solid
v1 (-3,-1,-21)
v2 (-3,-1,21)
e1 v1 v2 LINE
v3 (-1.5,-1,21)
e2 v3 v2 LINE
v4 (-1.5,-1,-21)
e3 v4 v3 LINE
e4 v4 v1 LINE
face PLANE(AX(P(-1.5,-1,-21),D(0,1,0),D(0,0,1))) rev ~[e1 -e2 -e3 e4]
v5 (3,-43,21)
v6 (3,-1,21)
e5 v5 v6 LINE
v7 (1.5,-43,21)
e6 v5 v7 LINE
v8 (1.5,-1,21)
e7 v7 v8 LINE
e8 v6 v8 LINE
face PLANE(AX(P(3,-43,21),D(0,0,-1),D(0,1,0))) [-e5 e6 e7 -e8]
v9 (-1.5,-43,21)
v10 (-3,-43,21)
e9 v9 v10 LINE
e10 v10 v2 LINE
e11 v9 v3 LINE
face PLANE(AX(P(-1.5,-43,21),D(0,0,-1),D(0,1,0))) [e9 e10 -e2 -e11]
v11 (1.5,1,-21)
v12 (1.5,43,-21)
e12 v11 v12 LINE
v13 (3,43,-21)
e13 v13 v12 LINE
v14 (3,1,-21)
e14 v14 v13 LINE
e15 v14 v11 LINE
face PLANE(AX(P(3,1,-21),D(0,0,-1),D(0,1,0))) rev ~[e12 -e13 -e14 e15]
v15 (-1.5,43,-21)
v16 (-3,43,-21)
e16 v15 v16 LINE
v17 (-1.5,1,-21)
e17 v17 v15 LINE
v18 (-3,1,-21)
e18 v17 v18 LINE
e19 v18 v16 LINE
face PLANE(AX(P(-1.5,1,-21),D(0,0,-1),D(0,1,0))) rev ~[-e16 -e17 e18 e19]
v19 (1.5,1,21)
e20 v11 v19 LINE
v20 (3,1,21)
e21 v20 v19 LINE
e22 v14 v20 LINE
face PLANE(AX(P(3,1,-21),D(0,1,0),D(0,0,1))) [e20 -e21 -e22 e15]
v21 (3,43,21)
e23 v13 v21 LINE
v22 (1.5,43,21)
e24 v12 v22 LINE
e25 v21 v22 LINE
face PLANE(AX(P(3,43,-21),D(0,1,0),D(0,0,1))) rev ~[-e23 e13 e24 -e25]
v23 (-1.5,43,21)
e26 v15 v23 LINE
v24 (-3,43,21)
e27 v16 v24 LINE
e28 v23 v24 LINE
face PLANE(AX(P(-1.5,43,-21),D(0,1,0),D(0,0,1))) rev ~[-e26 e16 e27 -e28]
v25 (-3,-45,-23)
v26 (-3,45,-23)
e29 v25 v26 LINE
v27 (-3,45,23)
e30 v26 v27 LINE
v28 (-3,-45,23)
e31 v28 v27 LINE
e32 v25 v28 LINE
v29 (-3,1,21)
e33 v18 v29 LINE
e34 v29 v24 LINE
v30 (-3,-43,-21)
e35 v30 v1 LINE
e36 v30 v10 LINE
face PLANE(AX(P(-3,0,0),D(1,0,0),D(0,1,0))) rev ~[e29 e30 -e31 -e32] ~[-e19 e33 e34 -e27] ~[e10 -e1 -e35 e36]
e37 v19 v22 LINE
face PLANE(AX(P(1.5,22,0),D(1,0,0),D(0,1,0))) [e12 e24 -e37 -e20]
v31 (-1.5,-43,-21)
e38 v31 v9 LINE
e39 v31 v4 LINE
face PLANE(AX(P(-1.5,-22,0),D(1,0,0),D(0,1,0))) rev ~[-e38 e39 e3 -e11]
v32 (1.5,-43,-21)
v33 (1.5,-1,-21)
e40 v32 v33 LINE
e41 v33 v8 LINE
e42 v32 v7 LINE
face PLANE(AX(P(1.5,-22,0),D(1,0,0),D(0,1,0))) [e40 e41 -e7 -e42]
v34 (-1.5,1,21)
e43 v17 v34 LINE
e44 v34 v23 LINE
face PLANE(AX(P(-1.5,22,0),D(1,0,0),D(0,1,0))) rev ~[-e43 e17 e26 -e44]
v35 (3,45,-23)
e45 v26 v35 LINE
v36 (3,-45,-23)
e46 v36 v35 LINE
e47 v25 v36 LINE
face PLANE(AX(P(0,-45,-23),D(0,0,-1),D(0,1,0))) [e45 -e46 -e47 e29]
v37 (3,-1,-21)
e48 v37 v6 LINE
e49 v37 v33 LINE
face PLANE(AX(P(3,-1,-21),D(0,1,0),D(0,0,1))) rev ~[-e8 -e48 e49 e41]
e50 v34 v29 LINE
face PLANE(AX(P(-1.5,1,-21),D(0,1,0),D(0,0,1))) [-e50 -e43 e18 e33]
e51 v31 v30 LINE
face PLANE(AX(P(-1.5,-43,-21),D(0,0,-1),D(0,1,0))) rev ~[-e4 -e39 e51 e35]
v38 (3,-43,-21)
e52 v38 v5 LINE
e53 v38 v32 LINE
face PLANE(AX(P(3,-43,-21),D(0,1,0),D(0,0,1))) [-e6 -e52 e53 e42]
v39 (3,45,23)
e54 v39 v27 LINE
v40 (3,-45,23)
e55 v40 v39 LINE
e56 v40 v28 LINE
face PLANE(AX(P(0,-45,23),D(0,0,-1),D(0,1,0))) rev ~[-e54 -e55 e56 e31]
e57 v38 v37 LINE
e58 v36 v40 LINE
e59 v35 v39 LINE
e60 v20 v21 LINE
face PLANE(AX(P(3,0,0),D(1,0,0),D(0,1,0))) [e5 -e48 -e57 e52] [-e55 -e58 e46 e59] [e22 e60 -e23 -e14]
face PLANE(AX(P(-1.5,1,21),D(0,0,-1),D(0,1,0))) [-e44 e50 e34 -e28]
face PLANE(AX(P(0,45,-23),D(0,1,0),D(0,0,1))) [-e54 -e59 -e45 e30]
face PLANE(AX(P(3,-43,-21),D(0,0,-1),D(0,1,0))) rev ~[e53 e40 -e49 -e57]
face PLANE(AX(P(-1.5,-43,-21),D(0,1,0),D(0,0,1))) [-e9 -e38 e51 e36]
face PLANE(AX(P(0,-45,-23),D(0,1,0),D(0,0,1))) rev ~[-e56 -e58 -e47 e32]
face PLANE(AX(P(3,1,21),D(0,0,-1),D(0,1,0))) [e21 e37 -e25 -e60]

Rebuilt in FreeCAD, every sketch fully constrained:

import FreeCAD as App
import Part
import Sketcher
from FreeCAD import Vector
Q = App.Units.Quantity

doc = App.newDocument("Part")
body = doc.addObject("PartDesign::Body", "Body")

# Sketch on YZ plane
sketch1 = body.newObject("Sketcher::SketchObject", "Sketch")
sketch1.AttachmentSupport = (doc.getObject("YZ_Plane"), [""])
sketch1.MapMode = "FlatFace"
sketch1.addGeometry([
    Part.LineSegment(Vector(-45, 23, 0), Vector(-45, -23, 0)),
    Part.LineSegment(Vector(-45, -23, 0), Vector(45, -23, 0)),
    Part.LineSegment(Vector(45, -23, 0), Vector(45, 23, 0)),
    Part.LineSegment(Vector(45, 23, 0), Vector(-45, 23, 0)),
], False)
sketch1.addConstraint([
    Sketcher.Constraint("Coincident", 0, 2, 1, 1),
    Sketcher.Constraint("Coincident", 1, 2, 2, 1),
    Sketcher.Constraint("Coincident", 2, 2, 3, 1),
    Sketcher.Constraint("Coincident", 3, 2, 0, 1),
    Sketcher.Constraint("Vertical", 0),
    Sketcher.Constraint("Horizontal", 1),
    Sketcher.Constraint("Vertical", 2),
    Sketcher.Constraint("Horizontal", 3),
    Sketcher.Constraint("Symmetric", 0, 2, 2, 2, -1, 1),
    Sketcher.Constraint("DistanceX", 1, 1, 1, 2, Q("90 mm")),
    Sketcher.Constraint("DistanceY", 0, 2, 0, 1, Q("46 mm")),
])
pad1 = body.newObject("PartDesign::Pad", "Pad")
pad1.Profile = sketch1
pad1.Length = 6
pad1.Midplane = True

# Sketch on YZ plane
sketch2 = body.newObject("Sketcher::SketchObject", "Sketch001")
sketch2.AttachmentSupport = (doc.getObject("YZ_Plane"), [""])
sketch2.MapMode = "FlatFace"
sketch2.AttachmentOffset = App.Placement(Vector(0, 0, -1.5), App.Rotation())
sketch2.addGeometry([
    Part.LineSegment(Vector(-43, 21, 0), Vector(-43, -21, 0)),  # 0
    Part.LineSegment(Vector(-43, -21, 0), Vector(-1, -21, 0)),  # 1
    Part.LineSegment(Vector(-1, -21, 0), Vector(-1, 21, 0)),  # 2
    Part.LineSegment(Vector(-1, 21, 0), Vector(-43, 21, 0)),  # 3
    Part.LineSegment(Vector(1, 21, 0), Vector(1, -21, 0)),  # 4
    Part.LineSegment(Vector(1, -21, 0), Vector(43, -21, 0)),  # 5
    Part.LineSegment(Vector(43, -21, 0), Vector(43, 21, 0)),  # 6
    Part.LineSegment(Vector(43, 21, 0), Vector(1, 21, 0)),  # 7
], False)
sketch2.addConstraint([
    Sketcher.Constraint("Coincident", 0, 2, 1, 1),
    Sketcher.Constraint("Coincident", 1, 2, 2, 1),
    Sketcher.Constraint("Coincident", 2, 2, 3, 1),
    Sketcher.Constraint("Coincident", 3, 2, 0, 1),
    Sketcher.Constraint("Coincident", 4, 2, 5, 1),
    Sketcher.Constraint("Coincident", 5, 2, 6, 1),
    Sketcher.Constraint("Coincident", 6, 2, 7, 1),
    Sketcher.Constraint("Coincident", 7, 2, 4, 1),
    Sketcher.Constraint("Vertical", 0),
    Sketcher.Constraint("Horizontal", 1),
    Sketcher.Constraint("Vertical", 2),
    Sketcher.Constraint("Horizontal", 3),
    Sketcher.Constraint("Vertical", 4),
    Sketcher.Constraint("Horizontal", 5),
    Sketcher.Constraint("Vertical", 6),
    Sketcher.Constraint("Horizontal", 7),
    Sketcher.Constraint("Symmetric", 2, 2, 4, 2, -1, 1),
    Sketcher.Constraint("Symmetric", 0, 2, 6, 2, -1, 1),
    Sketcher.Constraint("Horizontal", 1, 2, 4, 2),
    Sketcher.Constraint("Equal", 7, 0),
    Sketcher.Constraint("DistanceX", 1, 1, 1, 2, Q("42 mm")),
    Sketcher.Constraint("DistanceX", 0, 2, -1, 1, Q("43 mm")),
])
pocket1 = body.newObject("PartDesign::Pocket", "Pocket")
pocket1.Profile = sketch2
pocket1.Length = 1.5

# Sketch on YZ plane
sketch3 = body.newObject("Sketcher::SketchObject", "Sketch002")
sketch3.AttachmentSupport = (doc.getObject("YZ_Plane"), [""])
sketch3.MapMode = "FlatFace"
sketch3.AttachmentOffset = App.Placement(Vector(0, 0, 3), App.Rotation())
sketch3.addGeometry([
    Part.LineSegment(Vector(-43, 21, 0), Vector(-43, -21, 0)),  # 0
    Part.LineSegment(Vector(-43, -21, 0), Vector(-1, -21, 0)),  # 1
    Part.LineSegment(Vector(-1, -21, 0), Vector(-1, 21, 0)),  # 2
    Part.LineSegment(Vector(-1, 21, 0), Vector(-43, 21, 0)),  # 3
    Part.LineSegment(Vector(1, 21, 0), Vector(1, -21, 0)),  # 4
    Part.LineSegment(Vector(1, -21, 0), Vector(43, -21, 0)),  # 5
    Part.LineSegment(Vector(43, -21, 0), Vector(43, 21, 0)),  # 6
    Part.LineSegment(Vector(43, 21, 0), Vector(1, 21, 0)),  # 7
], False)
sketch3.addConstraint([
    Sketcher.Constraint("Coincident", 0, 2, 1, 1),
    Sketcher.Constraint("Coincident", 1, 2, 2, 1),
    Sketcher.Constraint("Coincident", 2, 2, 3, 1),
    Sketcher.Constraint("Coincident", 3, 2, 0, 1),
    Sketcher.Constraint("Coincident", 4, 2, 5, 1),
    Sketcher.Constraint("Coincident", 5, 2, 6, 1),
    Sketcher.Constraint("Coincident", 6, 2, 7, 1),
    Sketcher.Constraint("Coincident", 7, 2, 4, 1),
    Sketcher.Constraint("Vertical", 0),
    Sketcher.Constraint("Horizontal", 1),
    Sketcher.Constraint("Vertical", 2),
    Sketcher.Constraint("Horizontal", 3),
    Sketcher.Constraint("Vertical", 4),
    Sketcher.Constraint("Horizontal", 5),
    Sketcher.Constraint("Vertical", 6),
    Sketcher.Constraint("Horizontal", 7),
    Sketcher.Constraint("Symmetric", 2, 2, 4, 2, -1, 1),
    Sketcher.Constraint("Symmetric", 0, 2, 6, 2, -1, 1),
    Sketcher.Constraint("Horizontal", 1, 2, 4, 2),
    Sketcher.Constraint("Equal", 7, 0),
    Sketcher.Constraint("DistanceX", 1, 1, 1, 2, Q("42 mm")),
    Sketcher.Constraint("DistanceX", 0, 2, -1, 1, Q("43 mm")),
])
pocket2 = body.newObject("PartDesign::Pocket", "Pocket001")
pocket2.Profile = sketch3
pocket2.Length = 1.5

doc.recompute()
